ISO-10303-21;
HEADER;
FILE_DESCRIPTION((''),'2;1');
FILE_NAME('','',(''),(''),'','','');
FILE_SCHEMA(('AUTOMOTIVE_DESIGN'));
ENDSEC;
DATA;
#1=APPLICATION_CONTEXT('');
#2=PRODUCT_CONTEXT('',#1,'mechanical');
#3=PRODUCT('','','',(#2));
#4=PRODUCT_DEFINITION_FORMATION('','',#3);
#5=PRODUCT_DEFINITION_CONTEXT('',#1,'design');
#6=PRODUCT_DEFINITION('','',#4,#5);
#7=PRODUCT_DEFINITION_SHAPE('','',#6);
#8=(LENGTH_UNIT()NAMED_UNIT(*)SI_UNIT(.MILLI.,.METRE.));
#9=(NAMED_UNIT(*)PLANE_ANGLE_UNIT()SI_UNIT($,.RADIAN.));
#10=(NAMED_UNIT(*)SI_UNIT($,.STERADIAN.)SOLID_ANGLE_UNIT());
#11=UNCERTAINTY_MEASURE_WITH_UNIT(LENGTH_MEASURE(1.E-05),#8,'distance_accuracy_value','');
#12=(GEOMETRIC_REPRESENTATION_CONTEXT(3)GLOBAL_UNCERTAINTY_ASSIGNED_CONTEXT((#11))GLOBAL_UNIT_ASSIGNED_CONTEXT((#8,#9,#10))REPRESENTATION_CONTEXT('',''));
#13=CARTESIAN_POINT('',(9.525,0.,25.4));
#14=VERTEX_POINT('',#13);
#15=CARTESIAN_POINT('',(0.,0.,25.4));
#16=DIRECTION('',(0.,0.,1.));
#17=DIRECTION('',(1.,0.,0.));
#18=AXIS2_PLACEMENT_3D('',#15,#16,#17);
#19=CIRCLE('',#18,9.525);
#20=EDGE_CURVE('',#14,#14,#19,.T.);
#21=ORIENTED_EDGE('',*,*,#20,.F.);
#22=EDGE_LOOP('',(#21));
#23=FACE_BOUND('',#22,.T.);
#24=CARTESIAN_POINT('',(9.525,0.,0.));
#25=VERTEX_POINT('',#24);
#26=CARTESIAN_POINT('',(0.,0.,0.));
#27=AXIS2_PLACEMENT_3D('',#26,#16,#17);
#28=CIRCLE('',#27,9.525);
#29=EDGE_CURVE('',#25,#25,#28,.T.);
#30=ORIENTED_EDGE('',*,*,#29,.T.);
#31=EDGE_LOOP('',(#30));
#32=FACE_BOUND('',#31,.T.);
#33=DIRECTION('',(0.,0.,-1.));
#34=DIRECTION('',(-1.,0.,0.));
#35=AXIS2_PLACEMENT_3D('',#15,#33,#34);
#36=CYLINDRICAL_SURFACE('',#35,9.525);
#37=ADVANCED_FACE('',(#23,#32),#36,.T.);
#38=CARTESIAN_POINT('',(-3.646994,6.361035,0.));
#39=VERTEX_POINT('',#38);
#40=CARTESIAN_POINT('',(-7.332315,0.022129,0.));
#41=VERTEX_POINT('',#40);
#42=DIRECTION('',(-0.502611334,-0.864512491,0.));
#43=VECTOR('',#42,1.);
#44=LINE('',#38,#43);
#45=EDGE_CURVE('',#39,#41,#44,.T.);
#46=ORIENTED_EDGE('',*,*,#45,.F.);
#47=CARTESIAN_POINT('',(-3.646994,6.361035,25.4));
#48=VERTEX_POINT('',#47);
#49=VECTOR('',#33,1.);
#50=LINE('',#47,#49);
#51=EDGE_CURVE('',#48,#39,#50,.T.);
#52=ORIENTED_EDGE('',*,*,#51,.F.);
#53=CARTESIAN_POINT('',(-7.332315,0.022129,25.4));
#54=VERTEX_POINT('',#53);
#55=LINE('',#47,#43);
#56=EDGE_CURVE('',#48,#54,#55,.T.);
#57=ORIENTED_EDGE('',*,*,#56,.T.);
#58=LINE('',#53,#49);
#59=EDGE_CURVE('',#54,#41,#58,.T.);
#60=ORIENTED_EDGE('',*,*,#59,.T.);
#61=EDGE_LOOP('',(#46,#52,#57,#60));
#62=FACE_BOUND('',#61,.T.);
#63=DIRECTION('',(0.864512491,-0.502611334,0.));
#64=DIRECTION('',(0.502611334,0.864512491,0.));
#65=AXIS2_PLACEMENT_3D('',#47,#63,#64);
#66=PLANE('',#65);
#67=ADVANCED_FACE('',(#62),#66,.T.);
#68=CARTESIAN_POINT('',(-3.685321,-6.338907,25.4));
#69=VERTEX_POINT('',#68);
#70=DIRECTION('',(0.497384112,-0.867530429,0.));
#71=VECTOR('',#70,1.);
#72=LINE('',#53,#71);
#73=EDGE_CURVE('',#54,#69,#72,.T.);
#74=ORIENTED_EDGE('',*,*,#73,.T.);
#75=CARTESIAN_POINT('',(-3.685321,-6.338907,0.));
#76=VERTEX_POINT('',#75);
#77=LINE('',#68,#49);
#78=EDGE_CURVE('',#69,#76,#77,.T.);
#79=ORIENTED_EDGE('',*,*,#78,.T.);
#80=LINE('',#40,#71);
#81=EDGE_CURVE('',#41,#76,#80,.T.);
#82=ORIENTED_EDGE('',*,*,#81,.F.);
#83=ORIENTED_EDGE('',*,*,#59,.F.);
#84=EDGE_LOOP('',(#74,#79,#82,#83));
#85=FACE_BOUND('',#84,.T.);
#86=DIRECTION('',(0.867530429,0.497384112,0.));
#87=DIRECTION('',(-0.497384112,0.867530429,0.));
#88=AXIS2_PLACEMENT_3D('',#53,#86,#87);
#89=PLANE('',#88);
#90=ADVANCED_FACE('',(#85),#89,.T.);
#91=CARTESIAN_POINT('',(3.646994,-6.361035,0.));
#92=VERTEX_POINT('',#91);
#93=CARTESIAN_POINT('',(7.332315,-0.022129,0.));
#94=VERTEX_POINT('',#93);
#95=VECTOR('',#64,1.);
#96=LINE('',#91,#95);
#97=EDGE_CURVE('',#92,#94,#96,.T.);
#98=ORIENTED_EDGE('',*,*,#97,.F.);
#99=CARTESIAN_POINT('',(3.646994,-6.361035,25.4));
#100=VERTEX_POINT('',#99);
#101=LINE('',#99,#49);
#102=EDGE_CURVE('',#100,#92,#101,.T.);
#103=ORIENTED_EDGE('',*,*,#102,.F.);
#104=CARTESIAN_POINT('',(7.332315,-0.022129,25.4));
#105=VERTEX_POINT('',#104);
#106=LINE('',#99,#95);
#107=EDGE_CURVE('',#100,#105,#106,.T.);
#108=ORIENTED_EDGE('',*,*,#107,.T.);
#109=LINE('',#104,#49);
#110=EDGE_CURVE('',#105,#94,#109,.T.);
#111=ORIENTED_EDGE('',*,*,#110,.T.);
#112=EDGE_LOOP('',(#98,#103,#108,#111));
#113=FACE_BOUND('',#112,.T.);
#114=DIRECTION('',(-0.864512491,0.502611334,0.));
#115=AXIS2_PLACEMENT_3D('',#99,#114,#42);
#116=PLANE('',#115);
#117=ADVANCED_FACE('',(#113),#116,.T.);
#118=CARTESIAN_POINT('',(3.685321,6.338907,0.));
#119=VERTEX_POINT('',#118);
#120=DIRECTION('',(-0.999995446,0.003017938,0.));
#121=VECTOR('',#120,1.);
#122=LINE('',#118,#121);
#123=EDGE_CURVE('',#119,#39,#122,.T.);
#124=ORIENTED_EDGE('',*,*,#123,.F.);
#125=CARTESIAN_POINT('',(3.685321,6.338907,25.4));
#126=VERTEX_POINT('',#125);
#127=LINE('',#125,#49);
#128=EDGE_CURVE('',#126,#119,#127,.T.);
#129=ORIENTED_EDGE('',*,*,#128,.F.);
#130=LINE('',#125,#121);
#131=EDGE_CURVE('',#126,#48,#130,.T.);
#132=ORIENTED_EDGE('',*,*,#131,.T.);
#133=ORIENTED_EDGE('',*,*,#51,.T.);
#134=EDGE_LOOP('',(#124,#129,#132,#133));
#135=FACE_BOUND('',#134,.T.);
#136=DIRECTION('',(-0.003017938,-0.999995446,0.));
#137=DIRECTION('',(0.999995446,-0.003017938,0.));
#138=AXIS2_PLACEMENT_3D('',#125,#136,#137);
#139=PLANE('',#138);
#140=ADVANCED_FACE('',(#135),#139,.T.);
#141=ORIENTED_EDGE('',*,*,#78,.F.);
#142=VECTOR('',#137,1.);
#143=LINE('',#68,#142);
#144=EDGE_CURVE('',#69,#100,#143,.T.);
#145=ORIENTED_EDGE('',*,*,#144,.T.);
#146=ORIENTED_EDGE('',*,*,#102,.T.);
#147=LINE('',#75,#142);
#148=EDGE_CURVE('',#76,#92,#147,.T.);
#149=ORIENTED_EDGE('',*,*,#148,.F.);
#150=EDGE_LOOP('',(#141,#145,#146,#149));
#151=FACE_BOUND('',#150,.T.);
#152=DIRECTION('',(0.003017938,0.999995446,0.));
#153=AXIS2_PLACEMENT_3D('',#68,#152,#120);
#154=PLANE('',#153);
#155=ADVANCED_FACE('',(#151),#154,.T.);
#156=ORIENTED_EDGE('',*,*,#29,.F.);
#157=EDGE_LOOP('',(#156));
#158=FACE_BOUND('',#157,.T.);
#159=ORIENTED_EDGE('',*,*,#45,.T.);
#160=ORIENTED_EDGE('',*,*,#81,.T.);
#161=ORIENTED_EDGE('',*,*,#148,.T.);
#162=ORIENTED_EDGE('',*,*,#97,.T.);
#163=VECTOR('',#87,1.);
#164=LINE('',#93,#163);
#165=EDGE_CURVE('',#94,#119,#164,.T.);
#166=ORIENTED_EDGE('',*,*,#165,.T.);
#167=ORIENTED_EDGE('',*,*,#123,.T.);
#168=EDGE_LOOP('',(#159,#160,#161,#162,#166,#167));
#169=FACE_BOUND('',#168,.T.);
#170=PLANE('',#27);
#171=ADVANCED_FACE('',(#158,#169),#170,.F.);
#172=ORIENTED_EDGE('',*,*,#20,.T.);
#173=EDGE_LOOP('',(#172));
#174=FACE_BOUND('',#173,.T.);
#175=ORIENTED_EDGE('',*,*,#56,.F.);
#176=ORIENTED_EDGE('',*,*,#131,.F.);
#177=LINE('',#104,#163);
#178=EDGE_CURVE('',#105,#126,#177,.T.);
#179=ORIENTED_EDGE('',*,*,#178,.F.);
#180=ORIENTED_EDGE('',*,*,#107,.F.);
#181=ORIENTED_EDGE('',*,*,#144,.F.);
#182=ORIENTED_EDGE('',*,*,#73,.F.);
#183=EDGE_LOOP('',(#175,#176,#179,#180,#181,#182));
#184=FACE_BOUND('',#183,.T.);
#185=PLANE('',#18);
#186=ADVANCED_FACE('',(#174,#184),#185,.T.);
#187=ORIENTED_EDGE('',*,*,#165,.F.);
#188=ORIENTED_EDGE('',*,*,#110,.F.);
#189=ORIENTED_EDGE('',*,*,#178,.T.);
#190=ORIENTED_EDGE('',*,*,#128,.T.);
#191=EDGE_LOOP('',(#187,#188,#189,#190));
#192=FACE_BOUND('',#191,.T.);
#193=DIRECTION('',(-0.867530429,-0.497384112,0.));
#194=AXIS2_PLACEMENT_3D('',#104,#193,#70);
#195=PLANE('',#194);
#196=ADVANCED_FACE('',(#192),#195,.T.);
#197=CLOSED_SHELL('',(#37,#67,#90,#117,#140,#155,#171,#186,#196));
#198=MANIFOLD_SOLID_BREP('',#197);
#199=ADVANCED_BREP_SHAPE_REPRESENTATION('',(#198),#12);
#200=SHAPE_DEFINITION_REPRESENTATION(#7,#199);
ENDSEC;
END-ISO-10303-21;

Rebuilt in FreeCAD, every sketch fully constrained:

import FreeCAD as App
import Part
import Sketcher
Q = App.Units.Quantity


def add_polygon(sketch, points):
    """Adds a closed chain of lines whose ends are joined by coincident constraints."""
    first, n = sketch.GeometryCount, len(points)
    for a, b in zip(points, points[1:] + points[:1]):
        sketch.addGeometry(Part.LineSegment(App.Vector(*a, 0), App.Vector(*b, 0)), False)
    for i in range(n):
        sketch.addConstraint(Sketcher.Constraint("Coincident", first + i, 2, first + (i + 1) % n, 1))

doc = App.newDocument("Part")
body = doc.addObject("PartDesign::Body", "Body")

sketch1 = body.newObject("Sketcher::SketchObject", "Sketch")
sketch1.AttachmentSupport = (doc.getObject("XY_Plane"), [""])
sketch1.MapMode = "FlatFace"
sketch1.addGeometry(Part.Circle(App.Vector(0, 0, 0), App.Vector(0, 0, 1), 9.525), False)
add_polygon(sketch1, [(7.332315, -0.022129), (3.646994, -6.361035), (-3.685321, -6.338907), (-7.332315, 0.022129), (-3.646994, 6.361035), (3.685321, 6.338907)])
sketch1.addConstraint(Sketcher.Constraint("Coincident", 0, 3, -1, 1))
sketch1.addConstraint(Sketcher.Constraint("Diameter", 0, Q("0.75 in")))
sketch1.addConstraint(Sketcher.Constraint("Distance", 1, 7.332348))
sketch1.addConstraint(Sketcher.Constraint("Distance", 2, 7.332348))
sketch1.addConstraint(Sketcher.Constraint("Distance", 3, 7.332348))
sketch1.addConstraint(Sketcher.Constraint("Distance", 4, 7.332348))
sketch1.addConstraint(Sketcher.Constraint("Distance", 5, 7.332348))
sketch1.addConstraint(Sketcher.Constraint("Distance", 6, 7.332348))
sketch1.addConstraint(Sketcher.Constraint("DistanceX", 2, 2, -1, 1, 3.685321))
sketch1.addConstraint(Sketcher.Constraint("DistanceY", -1, 1, 3, 2, 0.022129))
sketch1.addConstraint(Sketcher.Constraint("DistanceX", -1, 1, 5, 2, 3.685321))
sketch1.addConstraint(Sketcher.Constraint("DistanceY", 6, 2, -1, 1, 0.022129))
sketch1.addConstraint(Sketcher.Constraint("DistanceY", 1, 2, 2, 2, 0.022129))
sketch1.addConstraint(Sketcher.Constraint("DistanceX", 3, 2, 1, 2, 10.979309))
pad1 = body.newObject("PartDesign::Pad", "Pad")
pad1.Profile = sketch1
pad1.Length = Q("1 in")

doc.recompute()
